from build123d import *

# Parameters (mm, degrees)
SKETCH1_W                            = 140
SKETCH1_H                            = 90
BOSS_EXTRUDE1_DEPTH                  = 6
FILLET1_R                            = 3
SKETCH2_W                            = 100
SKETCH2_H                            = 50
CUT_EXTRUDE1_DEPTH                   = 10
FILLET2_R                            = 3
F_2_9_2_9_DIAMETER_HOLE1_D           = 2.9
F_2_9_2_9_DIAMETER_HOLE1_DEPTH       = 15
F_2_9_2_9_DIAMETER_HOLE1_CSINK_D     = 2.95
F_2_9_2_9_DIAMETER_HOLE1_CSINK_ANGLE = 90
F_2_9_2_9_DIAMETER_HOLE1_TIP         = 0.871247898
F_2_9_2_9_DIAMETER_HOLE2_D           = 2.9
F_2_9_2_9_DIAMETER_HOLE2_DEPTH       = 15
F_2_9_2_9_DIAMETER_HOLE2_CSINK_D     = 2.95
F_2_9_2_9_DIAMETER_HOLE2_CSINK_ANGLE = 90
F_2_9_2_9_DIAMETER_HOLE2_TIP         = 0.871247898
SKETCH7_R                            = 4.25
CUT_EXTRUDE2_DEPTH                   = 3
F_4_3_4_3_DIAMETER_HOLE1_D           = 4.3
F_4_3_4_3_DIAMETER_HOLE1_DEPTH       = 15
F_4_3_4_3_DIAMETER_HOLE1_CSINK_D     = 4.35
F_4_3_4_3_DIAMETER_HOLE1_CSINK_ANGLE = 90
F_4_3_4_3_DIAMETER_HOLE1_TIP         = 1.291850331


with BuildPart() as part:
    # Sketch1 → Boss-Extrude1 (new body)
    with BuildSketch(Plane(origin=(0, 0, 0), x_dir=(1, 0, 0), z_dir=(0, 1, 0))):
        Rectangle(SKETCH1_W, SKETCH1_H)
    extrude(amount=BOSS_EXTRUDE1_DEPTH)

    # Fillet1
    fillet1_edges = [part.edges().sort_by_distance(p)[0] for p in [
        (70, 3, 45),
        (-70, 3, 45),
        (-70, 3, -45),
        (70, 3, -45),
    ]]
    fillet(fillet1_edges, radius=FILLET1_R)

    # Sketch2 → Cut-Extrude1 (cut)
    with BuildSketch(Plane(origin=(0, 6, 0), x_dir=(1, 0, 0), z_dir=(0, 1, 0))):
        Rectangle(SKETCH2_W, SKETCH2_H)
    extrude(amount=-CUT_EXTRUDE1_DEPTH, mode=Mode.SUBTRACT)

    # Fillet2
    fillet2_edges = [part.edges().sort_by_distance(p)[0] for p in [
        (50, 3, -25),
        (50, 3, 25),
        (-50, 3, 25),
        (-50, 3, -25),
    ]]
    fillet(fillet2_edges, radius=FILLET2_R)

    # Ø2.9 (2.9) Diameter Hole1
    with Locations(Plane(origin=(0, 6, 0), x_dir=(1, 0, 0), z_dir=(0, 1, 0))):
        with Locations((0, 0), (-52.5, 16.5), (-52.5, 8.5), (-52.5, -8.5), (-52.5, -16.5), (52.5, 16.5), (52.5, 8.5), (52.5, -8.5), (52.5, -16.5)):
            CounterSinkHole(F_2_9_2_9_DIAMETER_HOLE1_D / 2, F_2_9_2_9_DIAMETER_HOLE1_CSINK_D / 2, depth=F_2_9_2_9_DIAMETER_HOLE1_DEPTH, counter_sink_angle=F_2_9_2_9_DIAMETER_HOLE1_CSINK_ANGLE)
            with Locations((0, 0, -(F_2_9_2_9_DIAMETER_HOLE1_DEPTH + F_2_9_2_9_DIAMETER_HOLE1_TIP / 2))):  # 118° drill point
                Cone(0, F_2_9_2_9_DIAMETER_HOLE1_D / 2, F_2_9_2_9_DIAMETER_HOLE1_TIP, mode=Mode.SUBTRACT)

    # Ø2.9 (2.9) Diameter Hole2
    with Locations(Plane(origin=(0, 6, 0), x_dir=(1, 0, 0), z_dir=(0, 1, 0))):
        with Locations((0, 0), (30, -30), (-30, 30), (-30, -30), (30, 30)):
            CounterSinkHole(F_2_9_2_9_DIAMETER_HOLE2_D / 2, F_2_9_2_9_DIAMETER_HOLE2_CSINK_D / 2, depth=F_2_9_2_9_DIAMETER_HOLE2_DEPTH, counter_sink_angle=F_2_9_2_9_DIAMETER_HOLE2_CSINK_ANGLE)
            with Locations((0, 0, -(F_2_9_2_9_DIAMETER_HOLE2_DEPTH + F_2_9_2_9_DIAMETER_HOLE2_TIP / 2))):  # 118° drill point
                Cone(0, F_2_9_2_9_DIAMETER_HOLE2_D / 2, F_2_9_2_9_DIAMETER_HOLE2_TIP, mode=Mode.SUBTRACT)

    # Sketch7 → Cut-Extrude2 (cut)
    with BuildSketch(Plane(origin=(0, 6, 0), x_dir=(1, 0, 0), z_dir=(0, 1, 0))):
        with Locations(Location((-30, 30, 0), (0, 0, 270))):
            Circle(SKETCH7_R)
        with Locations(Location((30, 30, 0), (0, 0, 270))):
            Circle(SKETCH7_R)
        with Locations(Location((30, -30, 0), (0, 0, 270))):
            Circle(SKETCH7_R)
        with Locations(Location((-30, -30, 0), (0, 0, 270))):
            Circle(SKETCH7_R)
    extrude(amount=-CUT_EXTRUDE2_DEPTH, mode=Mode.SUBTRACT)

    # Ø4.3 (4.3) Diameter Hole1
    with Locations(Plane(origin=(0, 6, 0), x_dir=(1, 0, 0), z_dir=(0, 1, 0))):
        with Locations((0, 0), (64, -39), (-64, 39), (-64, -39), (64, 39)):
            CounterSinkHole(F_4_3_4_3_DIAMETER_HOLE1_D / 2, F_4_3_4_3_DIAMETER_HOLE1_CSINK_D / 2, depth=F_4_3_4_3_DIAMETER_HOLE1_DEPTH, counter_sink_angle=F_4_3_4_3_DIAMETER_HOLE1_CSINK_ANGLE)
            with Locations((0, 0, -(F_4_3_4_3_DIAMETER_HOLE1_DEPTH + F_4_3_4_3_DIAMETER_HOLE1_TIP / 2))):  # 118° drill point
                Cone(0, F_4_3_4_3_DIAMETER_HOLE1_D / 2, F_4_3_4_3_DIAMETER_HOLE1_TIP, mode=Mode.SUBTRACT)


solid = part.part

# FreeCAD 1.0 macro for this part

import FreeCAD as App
import Part
import Sketcher
from FreeCAD import Vector
Q = App.Units.Quantity


def edges_at(feature, points):
    """Names of the edges that pass closest to the given points."""
    edges = feature.Shape.Edges
    near = lambda p: min(range(len(edges)), key=lambda i: edges[i].distToShape(Part.Vertex(*p))[0])
    return sorted({f"Edge{near(p) + 1}" for p in points})


def add_polygon(sketch, points):
    """Adds a closed chain of lines whose ends are joined by coincident constraints."""
    first, n = sketch.GeometryCount, len(points)
    for a, b in zip(points, points[1:] + points[:1]):
        sketch.addGeometry(Part.LineSegment(App.Vector(*a, 0), App.Vector(*b, 0)), False)
    for i in range(n):
        sketch.addConstraint(Sketcher.Constraint("Coincident", first + i, 2, first + (i + 1) % n, 1))

doc = App.newDocument("Part")
params = doc.addObject("Spreadsheet::Sheet", "Params")
for row, (alias, value) in enumerate([
    ("sketch1_width", "140 mm"),
    ("sketch1_height", "90 mm"),
    ("pad1_length", "6 mm"),
    ("fillet_radius", "3 mm"),
    ("sketch2_width", "100 mm"),
    ("sketch2_height", "50 mm"),
    ("pocket1_length", "10 mm"),
    ("fillet2_radius", "3 mm"),
    ("sketch3_diameter", "2.9 mm"),
    ("hole_diameter", "2.9 mm"),
    ("hole_depth", "15 mm"),
    ("hole_csink_diameter", "2.95 mm"),
    ("sketch4_diameter", "2.9 mm"),
    ("hole2_diameter", "2.9 mm"),
    ("hole2_depth", "15 mm"),
    ("hole2_csink_diameter", "2.95 mm"),
    ("sketch5_diameter", "8.5 mm"),
    ("pocket2_length", "3 mm"),
    ("sketch6_diameter", "4.3 mm"),
    ("hole3_diameter", "4.3 mm"),
    ("hole3_depth", "15 mm"),
    ("hole3_csink_diameter", "4.35 mm"),
], start=1):
    params.set(f"A{row}", alias)
    params.set(f"B{row}", "=" + value)
    params.setAlias(f"B{row}", alias)

body = doc.addObject("PartDesign::Body", "Body")

# Sketch on XZ plane
sketch1 = body.newObject("Sketcher::SketchObject", "Sketch")
sketch1.AttachmentSupport = (doc.getObject("XZ_Plane"), [""])
sketch1.MapMode = "FlatFace"
add_polygon(sketch1, [(-70, -45), (-70, 45), (70, 45), (70, -45)])  # lines 0-3
sketch1.addConstraint([
    Sketcher.Constraint("Vertical", 0),
    Sketcher.Constraint("Horizontal", 1),
    Sketcher.Constraint("Vertical", 2),
    Sketcher.Constraint("Horizontal", 3),
    Sketcher.Constraint("Symmetric", 0, 2, 2, 2, -1, 1),
    Sketcher.Constraint("DistanceX", 1, 1, 1, 2, Q("140 mm")),
    Sketcher.Constraint("DistanceY", 0, 1, 0, 2, Q("90 mm")),
])
sketch1.setExpression("Constraints[9]", "Params.sketch1_width")
sketch1.setExpression("Constraints[10]", "Params.sketch1_height")
pad1 = body.newObject("PartDesign::Pad", "Pad")
pad1.Profile = sketch1
pad1.setExpression("Length", "Params.pad1_length")
pad1.Reversed = True
doc.recompute()

fillet = body.newObject("PartDesign::Fillet", "Fillet")
fillet.Base = (pad1, edges_at(pad1, [
    (70, 3, 45),
    (-70, 3, 45),
    (-70, 3, -45),
    (70, 3, -45),
]))
fillet.setExpression("Radius", "Params.fillet_radius")

# Sketch on XZ plane
sketch2 = body.newObject("Sketcher::SketchObject", "Sketch001")
sketch2.AttachmentSupport = (doc.getObject("XZ_Plane"), [""])
sketch2.MapMode = "FlatFace"
sketch2.AttachmentOffset = App.Placement(Vector(0, 0, -6), App.Rotation())
add_polygon(sketch2, [(-50, -25), (-50, 25), (50, 25), (50, -25)])  # lines 0-3
sketch2.addConstraint([
    Sketcher.Constraint("Vertical", 0),
    Sketcher.Constraint("Horizontal", 1),
    Sketcher.Constraint("Vertical", 2),
    Sketcher.Constraint("Horizontal", 3),
    Sketcher.Constraint("Symmetric", 0, 2, 2, 2, -1, 1),
    Sketcher.Constraint("DistanceX", 1, 1, 1, 2, Q("100 mm")),
    Sketcher.Constraint("DistanceY", 0, 1, 0, 2, Q("50 mm")),
])
sketch2.setExpression("Constraints[9]", "Params.sketch2_width")
sketch2.setExpression("Constraints[10]", "Params.sketch2_height")
pocket1 = body.newObject("PartDesign::Pocket", "Pocket")
pocket1.Profile = sketch2
pocket1.setExpression("Length", "Params.pocket1_length")
pocket1.Reversed = True
doc.recompute()

fillet2 = body.newObject("PartDesign::Fillet", "Fillet001")
fillet2.Base = (pocket1, edges_at(pocket1, [
    (50, 3, -25),
    (50, 3, 25),
    (-50, 3, 25),
    (-50, 3, -25),
]))
fillet2.setExpression("Radius", "Params.fillet2_radius")

# Sketch on XZ plane
sketch3 = body.newObject("Sketcher::SketchObject", "Sketch002")
sketch3.AttachmentSupport = (doc.getObject("XZ_Plane"), [""])
sketch3.MapMode = "FlatFace"
sketch3.AttachmentOffset = App.Placement(Vector(0, 0, -6), App.Rotation())
sketch3.addGeometry([
    Part.Circle(Vector(0, 0, 0), Vector(0, 0, 1), 1.4),  # 0
    Part.Circle(Vector(-52.5, -16.5, 0), Vector(0, 0, 1), 1.4),  # 1
    Part.Circle(Vector(-52.5, -8.5, 0), Vector(0, 0, 1), 1.4),  # 2
    Part.Circle(Vector(-52.5, 8.5, 0), Vector(0, 0, 1), 1.4),  # 3
    Part.Circle(Vector(-52.5, 16.5, 0), Vector(0, 0, 1), 1.4),  # 4
    Part.Circle(Vector(52.5, -16.5, 0), Vector(0, 0, 1), 1.4),  # 5
    Part.Circle(Vector(52.5, -8.5, 0), Vector(0, 0, 1), 1.4),  # 6
    Part.Circle(Vector(52.5, 8.5, 0), Vector(0, 0, 1), 1.4),  # 7
    Part.Circle(Vector(52.5, 16.5, 0), Vector(0, 0, 1), 1.4),  # 8
], False)
sketch3.addConstraint([
    Sketcher.Constraint("Coincident", 0, 3, -1, 1),
    Sketcher.Constraint("Equal", 0, 1),
    Sketcher.Constraint("Equal", 1, 2),
    Sketcher.Constraint("Equal", 2, 3),
    Sketcher.Constraint("Equal", 3, 4),
    Sketcher.Constraint("Equal", 4, 5),
    Sketcher.Constraint("Equal", 5, 6),
    Sketcher.Constraint("Equal", 6, 7),
    Sketcher.Constraint("Equal", 7, 8),
    Sketcher.Constraint("Symmetric", 4, 3, 5, 3, -1, 1),
    Sketcher.Constraint("Symmetric", 3, 3, 6, 3, -1, 1),
    Sketcher.Constraint("Symmetric", 2, 3, 7, 3, -1, 1),
    Sketcher.Constraint("Symmetric", 1, 3, 8, 3, -1, 1),
    Sketcher.Constraint("Symmetric", 1, 3, 5, 3, -2),
    Sketcher.Constraint("Symmetric", 2, 3, 6, 3, -2),
    Sketcher.Constraint("Vertical", 1, 3, 2, 3),
    Sketcher.Constraint("Diameter", 0, Q("2.9 mm")),
    Sketcher.Constraint("DistanceY", 1, 3, 2, 3, Q("8 mm")),
    Sketcher.Constraint("DistanceY", 2, 3, 3, 3, Q("17 mm")),
    Sketcher.Constraint("DistanceX", 1, 3, 5, 3, Q("105 mm")),
])
sketch3.setExpression("Constraints[16]", "Params.sketch3_diameter")
doc.recompute()
hole = body.newObject("PartDesign::Hole", "Hole")
hole.Profile = sketch3
hole.ThreadType = "None"
hole.setExpression("Diameter", "Params.hole_diameter")
hole.DepthType = "Dimension"
hole.setExpression("Depth", "Params.hole_depth")
hole.DrillPoint = "Angled"
hole.DrillPointAngle = 118
hole.HoleCutType = "Countersink"
hole.setExpression("HoleCutDiameter", "Params.hole_csink_diameter")
hole.HoleCutCountersinkAngle = 90
hole.Reversed = True

# Sketch on XZ plane
sketch4 = body.newObject("Sketcher::SketchObject", "Sketch003")
sketch4.AttachmentSupport = (doc.getObject("XZ_Plane"), [""])
sketch4.MapMode = "FlatFace"
sketch4.AttachmentOffset = App.Placement(Vector(0, 0, -6), App.Rotation())
sketch4.addGeometry([
    Part.Circle(Vector(0, 0, 0), Vector(0, 0, 1), 1.4),  # 0
    Part.Circle(Vector(30, 30, 0), Vector(0, 0, 1), 1.4),  # 1
    Part.Circle(Vector(-30, -30, 0), Vector(0, 0, 1), 1.4),  # 2
    Part.Circle(Vector(-30, 30, 0), Vector(0, 0, 1), 1.4),  # 3
    Part.Circle(Vector(30, -30, 0), Vector(0, 0, 1), 1.4),  # 4
], False)
sketch4.addConstraint([
    Sketcher.Constraint("Coincident", 0, 3, -1, 1),
    Sketcher.Constraint("Equal", 0, 1),
    Sketcher.Constraint("Equal", 1, 2),
    Sketcher.Constraint("Equal", 2, 3),
    Sketcher.Constraint("Equal", 3, 4),
    Sketcher.Constraint("Symmetric", 1, 3, 2, 3, -1, 1),
    Sketcher.Constraint("Symmetric", 3, 3, 4, 3, -1, 1),
    Sketcher.Constraint("Symmetric", 1, 3, 3, 3, -2),
    Sketcher.Constraint("Diameter", 0, Q("2.9 mm")),
    Sketcher.Constraint("DistanceX", -1, 1, 1, 3, Q("30 mm")),
    Sketcher.Constraint("DistanceY", -1, 1, 1, 3, Q("30 mm")),
])
sketch4.setExpression("Constraints[8]", "Params.sketch4_diameter")
doc.recompute()
hole2 = body.newObject("PartDesign::Hole", "Hole001")
hole2.Profile = sketch4
hole2.ThreadType = "None"
hole2.setExpression("Diameter", "Params.hole2_diameter")
hole2.DepthType = "Dimension"
hole2.setExpression("Depth", "Params.hole2_depth")
hole2.DrillPoint = "Angled"
hole2.DrillPointAngle = 118
hole2.HoleCutType = "Countersink"
hole2.setExpression("HoleCutDiameter", "Params.hole2_csink_diameter")
hole2.HoleCutCountersinkAngle = 90
hole2.Reversed = True

# Sketch on XZ plane
sketch5 = body.newObject("Sketcher::SketchObject", "Sketch004")
sketch5.AttachmentSupport = (doc.getObject("XZ_Plane"), [""])
sketch5.MapMode = "FlatFace"
sketch5.AttachmentOffset = App.Placement(Vector(0, 0, -6), App.Rotation())
sketch5.addGeometry([
    Part.Circle(Vector(-30, -30, 0), Vector(0, 0, 1), 4.2),
    Part.Circle(Vector(30, -30, 0), Vector(0, 0, 1), 4.2),
    Part.Circle(Vector(30, 30, 0), Vector(0, 0, 1), 4.2),
    Part.Circle(Vector(-30, 30, 0), Vector(0, 0, 1), 4.2),
], False)
sketch5.addConstraint([
    Sketcher.Constraint("Equal", 0, 1),
    Sketcher.Constraint("Equal", 1, 2),
    Sketcher.Constraint("Equal", 2, 3),
    Sketcher.Constraint("Symmetric", 0, 3, 2, 3, -1, 1),
    Sketcher.Constraint("Symmetric", 1, 3, 3, 3, -1, 1),
    Sketcher.Constraint("Symmetric", 0, 3, 1, 3, -2),
    Sketcher.Constraint("Diameter", 0, Q("8.5 mm")),
    Sketcher.Constraint("DistanceX", 0, 3, -1, 1, Q("30 mm")),
    Sketcher.Constraint("DistanceY", 0, 3, -1, 1, Q("30 mm")),
])
sketch5.setExpression("Constraints[6]", "Params.sketch5_diameter")
pocket2 = body.newObject("PartDesign::Pocket", "Pocket001")
pocket2.Profile = sketch5
pocket2.setExpression("Length", "Params.pocket2_length")
pocket2.Reversed = True

# Sketch on XZ plane
sketch6 = body.newObject("Sketcher::SketchObject", "Sketch005")
sketch6.AttachmentSupport = (doc.getObject("XZ_Plane"), [""])
sketch6.MapMode = "FlatFace"
sketch6.AttachmentOffset = App.Placement(Vector(0, 0, -6), App.Rotation())
sketch6.addGeometry([
    Part.Circle(Vector(0, 0, 0), Vector(0, 0, 1), 2.1),  # 0
    Part.Circle(Vector(64, 39, 0), Vector(0, 0, 1), 2.1),  # 1
    Part.Circle(Vector(-64, -39, 0), Vector(0, 0, 1), 2.1),  # 2
    Part.Circle(Vector(-64, 39, 0), Vector(0, 0, 1), 2.1),  # 3
    Part.Circle(Vector(64, -39, 0), Vector(0, 0, 1), 2.1),  # 4
], False)
sketch6.addConstraint([
    Sketcher.Constraint("Coincident", 0, 3, -1, 1),
    Sketcher.Constraint("Equal", 0, 1),
    Sketcher.Constraint("Equal", 1, 2),
    Sketcher.Constraint("Equal", 2, 3),
    Sketcher.Constraint("Equal", 3, 4),
    Sketcher.Constraint("Symmetric", 1, 3, 2, 3, -1, 1),
    Sketcher.Constraint("Symmetric", 3, 3, 4, 3, -1, 1),
    Sketcher.Constraint("Symmetric", 1, 3, 3, 3, -2),
    Sketcher.Constraint("Diameter", 0, Q("4.3 mm")),
    Sketcher.Constraint("DistanceX", -1, 1, 1, 3, Q("64 mm")),
    Sketcher.Constraint("DistanceY", -1, 1, 1, 3, Q("39 mm")),
])
sketch6.setExpression("Constraints[8]", "Params.sketch6_diameter")
doc.recompute()
hole3 = body.newObject("PartDesign::Hole", "Hole002")
hole3.Profile = sketch6
hole3.ThreadType = "None"
hole3.setExpression("Diameter", "Params.hole3_diameter")
hole3.DepthType = "Dimension"
hole3.setExpression("Depth", "Params.hole3_depth")
hole3.DrillPoint = "Angled"
hole3.DrillPointAngle = 118
hole3.HoleCutType = "Countersink"
hole3.setExpression("HoleCutDiameter", "Params.hole3_csink_diameter")
hole3.HoleCutCountersinkAngle = 90
hole3.Reversed = True

doc.recompute()
